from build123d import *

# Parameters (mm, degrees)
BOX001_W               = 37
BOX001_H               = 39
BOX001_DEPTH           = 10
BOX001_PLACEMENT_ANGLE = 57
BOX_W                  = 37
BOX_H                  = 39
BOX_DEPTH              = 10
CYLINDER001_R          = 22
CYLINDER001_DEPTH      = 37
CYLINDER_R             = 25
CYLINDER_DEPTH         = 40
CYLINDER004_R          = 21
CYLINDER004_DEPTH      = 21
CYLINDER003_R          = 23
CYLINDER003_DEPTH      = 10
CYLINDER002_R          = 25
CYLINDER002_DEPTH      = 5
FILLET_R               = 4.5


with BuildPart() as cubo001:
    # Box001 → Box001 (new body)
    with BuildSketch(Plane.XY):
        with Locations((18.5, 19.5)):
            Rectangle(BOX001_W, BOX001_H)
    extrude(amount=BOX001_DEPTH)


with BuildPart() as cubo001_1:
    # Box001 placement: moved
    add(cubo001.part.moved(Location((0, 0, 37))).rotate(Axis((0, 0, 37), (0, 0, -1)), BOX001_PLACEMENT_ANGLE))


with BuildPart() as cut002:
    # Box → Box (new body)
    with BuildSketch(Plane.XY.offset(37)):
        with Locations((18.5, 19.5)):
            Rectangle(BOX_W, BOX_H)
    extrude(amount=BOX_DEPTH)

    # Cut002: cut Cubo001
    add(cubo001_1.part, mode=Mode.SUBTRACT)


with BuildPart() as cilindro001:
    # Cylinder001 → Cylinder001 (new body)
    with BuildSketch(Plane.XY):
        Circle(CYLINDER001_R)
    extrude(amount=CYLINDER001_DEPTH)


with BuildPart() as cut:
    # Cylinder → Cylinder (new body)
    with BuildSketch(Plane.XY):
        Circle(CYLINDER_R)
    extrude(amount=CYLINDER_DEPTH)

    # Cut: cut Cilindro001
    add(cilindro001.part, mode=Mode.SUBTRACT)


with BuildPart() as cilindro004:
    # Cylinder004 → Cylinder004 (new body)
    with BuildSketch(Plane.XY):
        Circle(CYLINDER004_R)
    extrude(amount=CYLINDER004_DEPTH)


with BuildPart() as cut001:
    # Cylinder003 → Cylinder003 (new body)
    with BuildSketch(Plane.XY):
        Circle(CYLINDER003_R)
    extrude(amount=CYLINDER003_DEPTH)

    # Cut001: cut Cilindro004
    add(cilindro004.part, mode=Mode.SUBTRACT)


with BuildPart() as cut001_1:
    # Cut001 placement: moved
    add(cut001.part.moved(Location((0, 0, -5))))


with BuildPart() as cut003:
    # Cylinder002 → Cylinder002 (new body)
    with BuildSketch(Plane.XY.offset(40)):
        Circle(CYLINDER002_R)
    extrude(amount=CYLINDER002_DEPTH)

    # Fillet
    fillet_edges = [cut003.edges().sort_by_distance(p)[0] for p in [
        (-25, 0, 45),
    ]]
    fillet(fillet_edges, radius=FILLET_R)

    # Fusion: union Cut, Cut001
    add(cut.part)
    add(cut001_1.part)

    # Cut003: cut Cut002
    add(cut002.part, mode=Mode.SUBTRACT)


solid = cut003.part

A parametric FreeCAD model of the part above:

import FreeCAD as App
import Part
import Sketcher


def edges_at(feature, points):
    """Names of the edges that pass closest to the given points."""
    edges = feature.Shape.Edges
    near = lambda p: min(range(len(edges)), key=lambda i: edges[i].distToShape(Part.Vertex(*p))[0])
    return sorted({f"Edge{near(p) + 1}" for p in points})


def add_polygon(sketch, points):
    """Adds a closed chain of lines whose ends are joined by coincident constraints."""
    first, n = sketch.GeometryCount, len(points)
    for a, b in zip(points, points[1:] + points[:1]):
        sketch.addGeometry(Part.LineSegment(App.Vector(*a, 0), App.Vector(*b, 0)), False)
    for i in range(n):
        sketch.addConstraint(Sketcher.Constraint("Coincident", first + i, 2, first + (i + 1) % n, 1))

doc = App.newDocument("Part")
body = doc.addObject("PartDesign::Body", "Body")

# Sketch on XY plane
sketch1 = doc.addObject("Sketcher::SketchObject", "Sketch")
body.addObject(sketch1)
sketch1.AttachmentSupport = (doc.XY_Plane, [""])
sketch1.MapMode = "FlatFace"
add_polygon(sketch1, [(0, 39), (0, 0), (37, 0), (37, 39)])  # lines 0-3
sketch1.addConstraint([
    Sketcher.Constraint("Vertical", 0),
    Sketcher.Constraint("Horizontal", 1),
    Sketcher.Constraint("Vertical", 2),
    Sketcher.Constraint("Horizontal", 3),
    Sketcher.Constraint("Coincident", 0, 2, -1, 1),
    Sketcher.Constraint("DistanceX", 1, 1, 1, 2, 37.0),
    Sketcher.Constraint("DistanceY", 0, 2, 0, 1, 39.0),
])
pad1 = doc.addObject("PartDesign::Pad", "Pad")
body.addObject(pad1)
pad1.Profile = sketch1
pad1.Length = 10
body2 = doc.addObject("PartDesign::Body", "Body001")
doc.recompute()

body.Placement = App.Placement(App.Vector(0, 0, 37), App.Rotation(App.Vector(0, 0, -1), 57))
boolean = doc.addObject("PartDesign::Boolean", "Boolean")
body2.addObject(boolean)
boolean.Type = "Fuse"
boolean.addObjects([body])
body3 = doc.addObject("PartDesign::Body", "Body002")

# Sketch on XY plane
sketch2 = doc.addObject("Sketcher::SketchObject", "Sketch001")
body3.addObject(sketch2)
sketch2.AttachmentSupport = (doc.getObject("XY_Plane002"), [""])
sketch2.MapMode = "FlatFace"
sketch2.AttachmentOffset = App.Placement(App.Vector(0, 0, 37), App.Rotation())
add_polygon(sketch2, [(0, 39), (0, 0), (37, 0), (37, 39)])  # lines 0-3
sketch2.addConstraint([
    Sketcher.Constraint("Vertical", 0),
    Sketcher.Constraint("Horizontal", 1),
    Sketcher.Constraint("Vertical", 2),
    Sketcher.Constraint("Horizontal", 3),
    Sketcher.Constraint("Coincident", 0, 2, -1, 1),
    Sketcher.Constraint("DistanceX", 1, 1, 1, 2, 37.0),
    Sketcher.Constraint("DistanceY", 0, 2, 0, 1, 39.0),
])
pad2 = doc.addObject("PartDesign::Pad", "Pad001")
body3.addObject(pad2)
pad2.Profile = sketch2
pad2.Length = 10
doc.recompute()

boolean2 = doc.addObject("PartDesign::Boolean", "Boolean001")
body3.addObject(boolean2)
boolean2.Type = "Cut"
boolean2.addObjects([body2])
body4 = doc.addObject("PartDesign::Body", "Body003")

# Sketch on XY plane
sketch3 = doc.addObject("Sketcher::SketchObject", "Sketch002")
body4.addObject(sketch3)
sketch3.AttachmentSupport = (doc.getObject("XY_Plane003"), [""])
sketch3.MapMode = "FlatFace"
sketch3.addGeometry(Part.Circle(App.Vector(0, 0, 0), App.Vector(0, 0, 1), 22), False)
sketch3.addConstraint([
    Sketcher.Constraint("Coincident", 0, 3, -1, 1),
    Sketcher.Constraint("Diameter", 0, 44.0),
])
pad3 = doc.addObject("PartDesign::Pad", "Pad002")
body4.addObject(pad3)
pad3.Profile = sketch3
pad3.Length = 37
body5 = doc.addObject("PartDesign::Body", "Body004")

# Sketch on XY plane
sketch4 = doc.addObject("Sketcher::SketchObject", "Sketch003")
body5.addObject(sketch4)
sketch4.AttachmentSupport = (doc.getObject("XY_Plane004"), [""])
sketch4.MapMode = "FlatFace"
sketch4.addGeometry(Part.Circle(App.Vector(0, 0, 0), App.Vector(0, 0, 1), 25), False)
sketch4.addConstraint([
    Sketcher.Constraint("Coincident", 0, 3, -1, 1),
    Sketcher.Constraint("Diameter", 0, 50.0),
])
pad4 = doc.addObject("PartDesign::Pad", "Pad003")
body5.addObject(pad4)
pad4.Profile = sketch4
pad4.Length = 40
doc.recompute()

boolean3 = doc.addObject("PartDesign::Boolean", "Boolean002")
body5.addObject(boolean3)
boolean3.Type = "Cut"
boolean3.addObjects([body4])
body6 = doc.addObject("PartDesign::Body", "Body005")

# Sketch on XY plane
sketch5 = doc.addObject("Sketcher::SketchObject", "Sketch004")
body6.addObject(sketch5)
sketch5.AttachmentSupport = (doc.getObject("XY_Plane005"), [""])
sketch5.MapMode = "FlatFace"
sketch5.addGeometry(Part.Circle(App.Vector(0, 0, 0), App.Vector(0, 0, 1), 21), False)
sketch5.addConstraint([
    Sketcher.Constraint("Coincident", 0, 3, -1, 1),
    Sketcher.Constraint("Diameter", 0, 42.0),
])
pad5 = doc.addObject("PartDesign::Pad", "Pad004")
body6.addObject(pad5)
pad5.Profile = sketch5
pad5.Length = 21
body7 = doc.addObject("PartDesign::Body", "Body006")

# Sketch on XY plane
sketch6 = doc.addObject("Sketcher::SketchObject", "Sketch005")
body7.addObject(sketch6)
sketch6.AttachmentSupport = (doc.getObject("XY_Plane006"), [""])
sketch6.MapMode = "FlatFace"
sketch6.addGeometry(Part.Circle(App.Vector(0, 0, 0), App.Vector(0, 0, 1), 23), False)
sketch6.addConstraint([
    Sketcher.Constraint("Coincident", 0, 3, -1, 1),
    Sketcher.Constraint("Diameter", 0, 46.0),
])
pad6 = doc.addObject("PartDesign::Pad", "Pad005")
body7.addObject(pad6)
pad6.Profile = sketch6
pad6.Length = 10
doc.recompute()

boolean4 = doc.addObject("PartDesign::Boolean", "Boolean003")
body7.addObject(boolean4)
boolean4.Type = "Cut"
boolean4.addObjects([body6])
body8 = doc.addObject("PartDesign::Body", "Body007")
doc.recompute()

body7.Placement = App.Placement(App.Vector(0, 0, -5), App.Rotation(App.Vector(0, 0, 1), 0))
boolean5 = doc.addObject("PartDesign::Boolean", "Boolean004")
body8.addObject(boolean5)
boolean5.Type = "Fuse"
boolean5.addObjects([body7])
body9 = doc.addObject("PartDesign::Body", "Body008")

# Sketch on XY plane
sketch7 = doc.addObject("Sketcher::SketchObject", "Sketch006")
body9.addObject(sketch7)
sketch7.AttachmentSupport = (doc.getObject("XY_Plane008"), [""])
sketch7.MapMode = "FlatFace"
sketch7.AttachmentOffset = App.Placement(App.Vector(0, 0, 40), App.Rotation())
sketch7.addGeometry(Part.Circle(App.Vector(0, 0, 0), App.Vector(0, 0, 1), 25), False)
sketch7.addConstraint([
    Sketcher.Constraint("Coincident", 0, 3, -1, 1),
    Sketcher.Constraint("Diameter", 0, 50.0),
])
pad7 = doc.addObject("PartDesign::Pad", "Pad006")
body9.addObject(pad7)
pad7.Profile = sketch7
pad7.Length = 5
doc.recompute()

fillet = doc.addObject("PartDesign::Fillet", "Fillet")
body9.addObject(fillet)
fillet.Base = (pad7, edges_at(pad7, [(-25, 0, 45)]))
fillet.Radius = 4.5
doc.recompute()

boolean6 = doc.addObject("PartDesign::Boolean", "Boolean005")
body9.addObject(boolean6)
boolean6.Type = "Fuse"
boolean6.addObjects([body5])
doc.recompute()

boolean7 = doc.addObject("PartDesign::Boolean", "Boolean006")
body9.addObject(boolean7)
boolean7.Type = "Fuse"
boolean7.addObjects([body8])
doc.recompute()

boolean8 = doc.addObject("PartDesign::Boolean", "Boolean007")
body9.addObject(boolean8)
boolean8.Type = "Cut"
boolean8.addObjects([body3])

doc.recompute()
